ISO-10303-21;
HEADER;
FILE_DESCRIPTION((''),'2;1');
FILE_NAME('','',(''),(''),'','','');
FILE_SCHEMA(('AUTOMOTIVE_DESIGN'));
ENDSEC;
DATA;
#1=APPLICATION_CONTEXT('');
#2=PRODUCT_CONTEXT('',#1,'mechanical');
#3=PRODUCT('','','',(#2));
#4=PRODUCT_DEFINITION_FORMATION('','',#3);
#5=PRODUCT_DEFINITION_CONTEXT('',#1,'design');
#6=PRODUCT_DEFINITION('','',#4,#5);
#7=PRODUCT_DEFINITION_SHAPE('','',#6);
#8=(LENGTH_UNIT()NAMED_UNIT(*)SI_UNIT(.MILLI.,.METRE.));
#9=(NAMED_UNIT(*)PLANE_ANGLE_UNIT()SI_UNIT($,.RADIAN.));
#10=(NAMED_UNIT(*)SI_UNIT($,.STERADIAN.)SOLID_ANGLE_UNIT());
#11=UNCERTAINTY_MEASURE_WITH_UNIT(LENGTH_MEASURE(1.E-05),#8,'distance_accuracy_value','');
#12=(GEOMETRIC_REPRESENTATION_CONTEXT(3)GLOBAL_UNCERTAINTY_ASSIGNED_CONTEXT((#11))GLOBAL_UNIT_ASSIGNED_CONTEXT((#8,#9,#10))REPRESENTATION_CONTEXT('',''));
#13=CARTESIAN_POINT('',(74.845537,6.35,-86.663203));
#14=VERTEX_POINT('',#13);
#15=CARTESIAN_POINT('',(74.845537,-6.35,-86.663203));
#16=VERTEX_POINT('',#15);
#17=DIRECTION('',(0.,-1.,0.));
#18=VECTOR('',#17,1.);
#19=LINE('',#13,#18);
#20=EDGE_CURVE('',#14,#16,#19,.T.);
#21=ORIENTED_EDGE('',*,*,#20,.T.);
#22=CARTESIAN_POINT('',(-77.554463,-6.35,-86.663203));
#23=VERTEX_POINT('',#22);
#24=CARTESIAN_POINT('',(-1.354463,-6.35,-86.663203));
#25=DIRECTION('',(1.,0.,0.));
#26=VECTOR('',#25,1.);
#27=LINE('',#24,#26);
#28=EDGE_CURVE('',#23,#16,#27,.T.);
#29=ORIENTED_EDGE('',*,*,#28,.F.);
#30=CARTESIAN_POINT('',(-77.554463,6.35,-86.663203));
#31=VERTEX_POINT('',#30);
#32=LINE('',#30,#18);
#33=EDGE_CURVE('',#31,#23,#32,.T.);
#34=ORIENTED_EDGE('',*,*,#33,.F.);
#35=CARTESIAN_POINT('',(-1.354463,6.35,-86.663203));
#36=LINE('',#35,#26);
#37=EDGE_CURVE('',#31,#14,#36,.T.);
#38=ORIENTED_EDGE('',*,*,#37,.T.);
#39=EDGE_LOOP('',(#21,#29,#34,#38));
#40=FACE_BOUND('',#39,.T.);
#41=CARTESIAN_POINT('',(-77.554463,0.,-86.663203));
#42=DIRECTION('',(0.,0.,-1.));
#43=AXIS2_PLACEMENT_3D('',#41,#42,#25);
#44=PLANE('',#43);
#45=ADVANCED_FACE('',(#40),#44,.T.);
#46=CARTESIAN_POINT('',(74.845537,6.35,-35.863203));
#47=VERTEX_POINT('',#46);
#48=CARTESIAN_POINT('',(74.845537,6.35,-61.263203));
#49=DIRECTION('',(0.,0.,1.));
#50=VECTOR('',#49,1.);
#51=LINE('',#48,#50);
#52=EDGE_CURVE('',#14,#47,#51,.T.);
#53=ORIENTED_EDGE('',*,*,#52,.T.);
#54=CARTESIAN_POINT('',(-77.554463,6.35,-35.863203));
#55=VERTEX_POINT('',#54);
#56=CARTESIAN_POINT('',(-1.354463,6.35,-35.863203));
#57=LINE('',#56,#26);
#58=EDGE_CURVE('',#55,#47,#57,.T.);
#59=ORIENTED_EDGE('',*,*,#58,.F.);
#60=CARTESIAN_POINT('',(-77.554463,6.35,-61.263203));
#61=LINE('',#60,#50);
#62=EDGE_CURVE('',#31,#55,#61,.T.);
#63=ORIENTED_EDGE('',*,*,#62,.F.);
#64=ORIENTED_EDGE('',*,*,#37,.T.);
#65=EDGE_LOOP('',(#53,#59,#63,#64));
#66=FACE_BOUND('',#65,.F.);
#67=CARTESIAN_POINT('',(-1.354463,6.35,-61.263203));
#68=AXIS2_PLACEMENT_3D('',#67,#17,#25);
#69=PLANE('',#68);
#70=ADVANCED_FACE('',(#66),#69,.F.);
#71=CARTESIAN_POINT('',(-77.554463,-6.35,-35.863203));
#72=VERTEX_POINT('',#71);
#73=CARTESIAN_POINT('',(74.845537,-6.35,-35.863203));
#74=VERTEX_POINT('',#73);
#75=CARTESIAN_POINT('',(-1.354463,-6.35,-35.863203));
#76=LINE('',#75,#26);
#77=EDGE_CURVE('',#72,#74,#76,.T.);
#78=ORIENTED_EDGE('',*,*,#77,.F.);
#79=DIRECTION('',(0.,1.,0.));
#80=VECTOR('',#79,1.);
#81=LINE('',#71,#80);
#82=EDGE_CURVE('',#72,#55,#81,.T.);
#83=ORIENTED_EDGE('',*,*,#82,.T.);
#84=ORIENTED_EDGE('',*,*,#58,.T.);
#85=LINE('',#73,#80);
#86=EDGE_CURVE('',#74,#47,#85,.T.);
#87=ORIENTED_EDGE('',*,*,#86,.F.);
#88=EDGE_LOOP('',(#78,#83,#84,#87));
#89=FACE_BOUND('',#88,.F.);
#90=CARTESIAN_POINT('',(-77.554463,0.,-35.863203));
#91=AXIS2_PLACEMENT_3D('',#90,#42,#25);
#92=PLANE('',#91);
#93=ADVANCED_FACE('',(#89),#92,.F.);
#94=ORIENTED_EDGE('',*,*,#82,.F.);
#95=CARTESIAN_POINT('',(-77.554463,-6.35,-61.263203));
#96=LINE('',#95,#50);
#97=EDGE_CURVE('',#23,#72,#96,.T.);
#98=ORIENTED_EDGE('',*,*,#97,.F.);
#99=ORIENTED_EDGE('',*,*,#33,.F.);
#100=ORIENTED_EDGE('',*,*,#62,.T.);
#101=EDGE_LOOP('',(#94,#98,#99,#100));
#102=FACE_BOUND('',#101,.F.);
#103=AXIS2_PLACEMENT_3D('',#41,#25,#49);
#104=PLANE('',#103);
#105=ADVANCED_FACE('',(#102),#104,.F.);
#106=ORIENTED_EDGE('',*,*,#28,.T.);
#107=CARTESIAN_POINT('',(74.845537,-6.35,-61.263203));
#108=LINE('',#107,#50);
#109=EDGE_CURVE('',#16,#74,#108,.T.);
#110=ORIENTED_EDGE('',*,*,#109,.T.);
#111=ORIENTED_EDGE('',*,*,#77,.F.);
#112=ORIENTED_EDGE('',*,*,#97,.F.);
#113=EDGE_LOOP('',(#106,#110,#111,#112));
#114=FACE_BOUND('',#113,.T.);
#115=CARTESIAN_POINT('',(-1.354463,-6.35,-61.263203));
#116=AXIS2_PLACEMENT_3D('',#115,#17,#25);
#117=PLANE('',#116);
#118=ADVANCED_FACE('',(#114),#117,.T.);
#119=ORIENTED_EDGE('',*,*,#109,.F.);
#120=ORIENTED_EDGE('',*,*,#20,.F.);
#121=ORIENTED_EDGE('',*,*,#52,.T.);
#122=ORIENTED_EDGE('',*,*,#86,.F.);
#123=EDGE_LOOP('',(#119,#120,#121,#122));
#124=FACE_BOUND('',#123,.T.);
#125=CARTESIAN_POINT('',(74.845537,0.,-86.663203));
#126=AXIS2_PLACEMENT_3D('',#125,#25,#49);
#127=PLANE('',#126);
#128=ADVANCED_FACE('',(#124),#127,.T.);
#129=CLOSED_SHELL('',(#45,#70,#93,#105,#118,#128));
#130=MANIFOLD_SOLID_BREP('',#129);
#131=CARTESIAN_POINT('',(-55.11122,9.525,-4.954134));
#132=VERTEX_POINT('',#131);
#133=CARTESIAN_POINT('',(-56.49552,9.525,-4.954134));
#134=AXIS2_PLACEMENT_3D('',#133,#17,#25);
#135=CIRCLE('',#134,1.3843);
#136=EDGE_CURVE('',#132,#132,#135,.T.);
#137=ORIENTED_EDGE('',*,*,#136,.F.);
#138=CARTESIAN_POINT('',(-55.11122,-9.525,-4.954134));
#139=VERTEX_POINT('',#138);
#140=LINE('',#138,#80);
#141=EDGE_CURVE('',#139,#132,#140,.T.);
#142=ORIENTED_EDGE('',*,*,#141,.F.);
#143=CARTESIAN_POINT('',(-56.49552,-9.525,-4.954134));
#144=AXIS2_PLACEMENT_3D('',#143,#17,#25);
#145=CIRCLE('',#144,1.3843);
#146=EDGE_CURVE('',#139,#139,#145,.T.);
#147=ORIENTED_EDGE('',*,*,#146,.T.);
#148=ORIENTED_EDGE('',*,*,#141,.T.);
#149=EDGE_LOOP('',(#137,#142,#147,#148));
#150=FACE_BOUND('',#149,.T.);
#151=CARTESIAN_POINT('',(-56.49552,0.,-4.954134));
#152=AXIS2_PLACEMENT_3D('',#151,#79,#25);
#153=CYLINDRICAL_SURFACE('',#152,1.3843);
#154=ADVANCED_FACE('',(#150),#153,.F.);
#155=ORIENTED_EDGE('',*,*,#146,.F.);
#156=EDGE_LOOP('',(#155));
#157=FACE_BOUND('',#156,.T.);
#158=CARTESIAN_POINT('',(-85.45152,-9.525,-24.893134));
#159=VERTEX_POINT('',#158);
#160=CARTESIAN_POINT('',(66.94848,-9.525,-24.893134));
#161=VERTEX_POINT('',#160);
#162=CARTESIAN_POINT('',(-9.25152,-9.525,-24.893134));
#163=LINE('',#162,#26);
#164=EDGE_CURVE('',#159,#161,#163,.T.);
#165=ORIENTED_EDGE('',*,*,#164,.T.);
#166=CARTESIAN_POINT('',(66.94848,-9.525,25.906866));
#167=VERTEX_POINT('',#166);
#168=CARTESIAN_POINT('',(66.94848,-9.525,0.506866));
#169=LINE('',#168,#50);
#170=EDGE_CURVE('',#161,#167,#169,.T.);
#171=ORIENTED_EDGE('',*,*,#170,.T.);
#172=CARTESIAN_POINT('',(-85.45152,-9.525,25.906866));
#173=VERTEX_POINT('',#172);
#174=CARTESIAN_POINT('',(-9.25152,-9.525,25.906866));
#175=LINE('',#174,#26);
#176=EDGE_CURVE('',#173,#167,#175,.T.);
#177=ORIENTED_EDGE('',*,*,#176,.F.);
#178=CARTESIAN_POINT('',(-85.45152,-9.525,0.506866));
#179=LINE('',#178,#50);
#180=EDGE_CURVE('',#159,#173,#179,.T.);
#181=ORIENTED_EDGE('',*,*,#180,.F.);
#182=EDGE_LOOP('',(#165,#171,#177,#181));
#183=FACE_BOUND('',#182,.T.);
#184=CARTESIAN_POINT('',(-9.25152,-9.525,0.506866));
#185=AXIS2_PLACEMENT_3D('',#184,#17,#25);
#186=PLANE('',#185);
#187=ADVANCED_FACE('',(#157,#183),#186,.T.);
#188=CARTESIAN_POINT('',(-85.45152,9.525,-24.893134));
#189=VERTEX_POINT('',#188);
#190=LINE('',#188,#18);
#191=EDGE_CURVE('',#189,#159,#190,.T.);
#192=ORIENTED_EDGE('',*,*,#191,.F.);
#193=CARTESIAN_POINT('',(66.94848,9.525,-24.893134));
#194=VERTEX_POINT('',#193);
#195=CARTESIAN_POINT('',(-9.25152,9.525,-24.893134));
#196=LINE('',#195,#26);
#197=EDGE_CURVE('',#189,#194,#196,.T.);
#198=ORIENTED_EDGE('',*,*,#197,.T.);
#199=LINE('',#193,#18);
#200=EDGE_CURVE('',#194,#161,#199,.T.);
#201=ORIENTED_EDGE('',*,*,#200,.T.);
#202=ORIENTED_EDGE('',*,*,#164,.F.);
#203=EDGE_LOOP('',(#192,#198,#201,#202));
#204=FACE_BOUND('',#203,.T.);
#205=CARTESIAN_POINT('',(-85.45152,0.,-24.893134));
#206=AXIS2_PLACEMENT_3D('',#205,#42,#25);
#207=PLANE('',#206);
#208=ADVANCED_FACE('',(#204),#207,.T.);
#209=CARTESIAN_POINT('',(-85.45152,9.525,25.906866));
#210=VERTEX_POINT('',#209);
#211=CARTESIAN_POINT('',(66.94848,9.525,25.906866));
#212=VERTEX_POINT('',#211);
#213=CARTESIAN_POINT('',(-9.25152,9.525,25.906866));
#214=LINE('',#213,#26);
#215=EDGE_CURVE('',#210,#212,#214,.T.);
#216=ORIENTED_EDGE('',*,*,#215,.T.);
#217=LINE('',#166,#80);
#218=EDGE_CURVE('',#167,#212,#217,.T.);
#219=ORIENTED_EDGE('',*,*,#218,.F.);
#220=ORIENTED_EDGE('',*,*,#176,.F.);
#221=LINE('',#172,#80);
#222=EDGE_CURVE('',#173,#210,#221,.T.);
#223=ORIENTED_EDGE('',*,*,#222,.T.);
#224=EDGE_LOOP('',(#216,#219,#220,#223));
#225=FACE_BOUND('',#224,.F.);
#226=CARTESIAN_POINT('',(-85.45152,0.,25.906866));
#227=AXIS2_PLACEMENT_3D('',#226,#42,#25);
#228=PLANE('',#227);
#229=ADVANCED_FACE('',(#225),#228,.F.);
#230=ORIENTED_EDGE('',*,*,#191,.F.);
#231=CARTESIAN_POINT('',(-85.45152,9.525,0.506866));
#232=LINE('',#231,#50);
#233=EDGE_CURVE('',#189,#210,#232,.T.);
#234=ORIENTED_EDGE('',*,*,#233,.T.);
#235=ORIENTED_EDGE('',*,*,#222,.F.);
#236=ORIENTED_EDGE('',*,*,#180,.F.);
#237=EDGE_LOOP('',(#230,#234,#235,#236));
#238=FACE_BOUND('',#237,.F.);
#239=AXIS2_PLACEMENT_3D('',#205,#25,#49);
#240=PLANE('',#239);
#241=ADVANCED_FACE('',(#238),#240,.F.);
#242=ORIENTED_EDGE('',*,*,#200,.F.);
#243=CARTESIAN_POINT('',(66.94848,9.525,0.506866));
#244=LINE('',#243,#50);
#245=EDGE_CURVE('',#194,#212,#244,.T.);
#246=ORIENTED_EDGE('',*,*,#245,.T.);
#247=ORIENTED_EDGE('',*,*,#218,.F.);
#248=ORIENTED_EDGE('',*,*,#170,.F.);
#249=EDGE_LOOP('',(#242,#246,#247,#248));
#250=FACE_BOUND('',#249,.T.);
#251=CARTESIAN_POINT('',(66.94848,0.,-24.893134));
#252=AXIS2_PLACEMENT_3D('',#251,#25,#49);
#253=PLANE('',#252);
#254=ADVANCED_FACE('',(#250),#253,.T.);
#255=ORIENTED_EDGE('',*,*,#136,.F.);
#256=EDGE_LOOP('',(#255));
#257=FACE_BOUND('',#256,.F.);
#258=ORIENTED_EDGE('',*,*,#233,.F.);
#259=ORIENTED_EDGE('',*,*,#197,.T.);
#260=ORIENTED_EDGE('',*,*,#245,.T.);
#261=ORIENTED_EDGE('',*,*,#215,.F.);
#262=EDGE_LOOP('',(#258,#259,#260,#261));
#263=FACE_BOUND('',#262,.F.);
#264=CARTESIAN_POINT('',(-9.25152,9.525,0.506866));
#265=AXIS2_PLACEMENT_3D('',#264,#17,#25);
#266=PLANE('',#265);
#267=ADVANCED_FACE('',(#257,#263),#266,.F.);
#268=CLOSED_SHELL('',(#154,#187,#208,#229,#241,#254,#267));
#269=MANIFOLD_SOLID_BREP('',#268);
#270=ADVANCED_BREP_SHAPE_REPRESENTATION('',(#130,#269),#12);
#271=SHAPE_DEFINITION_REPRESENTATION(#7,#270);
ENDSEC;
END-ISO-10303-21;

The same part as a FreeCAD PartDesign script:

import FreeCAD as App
import Part
import Sketcher
from FreeCAD import Vector
Q = App.Units.Quantity

doc = App.newDocument("Part")
body = doc.addObject("PartDesign::Body", "Body")

# Sketch on XZ plane
sketch1 = body.newObject("Sketcher::SketchObject", "Sketch")
sketch1.AttachmentSupport = (doc.getObject("XZ_Plane"), [""])
sketch1.MapMode = "FlatFace"
sketch1.addGeometry([
    Part.LineSegment(Vector(-85.45152, 25.906866, 0), Vector(-85.45152, -24.893134, 0)),  # 0
    Part.LineSegment(Vector(-85.45152, -24.893134, 0), Vector(66.94848, -24.893134, 0)),  # 1
    Part.LineSegment(Vector(66.94848, -24.893134, 0), Vector(66.94848, 25.906866, 0)),  # 2
    Part.LineSegment(Vector(66.94848, 25.906866, 0), Vector(-85.45152, 25.906866, 0)),  # 3
    Part.Circle(Vector(-56.49552, -4.954134, 0), Vector(0, 0, 1), 1.3843),  # 4
], False)
sketch1.addConstraint([
    Sketcher.Constraint("Coincident", 0, 2, 1, 1),
    Sketcher.Constraint("Coincident", 1, 2, 2, 1),
    Sketcher.Constraint("Coincident", 2, 2, 3, 1),
    Sketcher.Constraint("Coincident", 3, 2, 0, 1),
    Sketcher.Constraint("Vertical", 0),
    Sketcher.Constraint("Horizontal", 1),
    Sketcher.Constraint("Vertical", 2),
    Sketcher.Constraint("Horizontal", 3),
    Sketcher.Constraint("DistanceX", 1, 1, 1, 2, Q("6 in")),
    Sketcher.Constraint("DistanceY", 0, 2, 0, 1, Q("2 in")),
    Sketcher.Constraint("Diameter", 4, Q("0.109 in")),
    Sketcher.Constraint("DistanceX", 0, 2, 4, 3, Q("1.14 in")),
    Sketcher.Constraint("DistanceY", 0, 2, 4, 3, Q("0.785 in")),
    Sketcher.Constraint("DistanceX", 4, 3, -1, 1, 56.49552),
    Sketcher.Constraint("DistanceY", 4, 3, -1, 1, 4.954134),
])
pad1 = body.newObject("PartDesign::Pad", "Pad")
pad1.Profile = sketch1
pad1.Length = Q("0.75 in")
pad1.Midplane = True
body2 = doc.addObject("PartDesign::Body", "Body001")

# Sketch on XZ plane
sketch2 = body2.newObject("Sketcher::SketchObject", "Sketch001")
sketch2.AttachmentSupport = (doc.getObject("XZ_Plane001"), [""])
sketch2.MapMode = "FlatFace"
sketch2.addGeometry([
    Part.LineSegment(Vector(-77.554463, -35.863203, 0), Vector(-77.554463, -86.663203, 0)),
    Part.LineSegment(Vector(-77.554463, -86.663203, 0), Vector(74.845537, -86.663203, 0)),
    Part.LineSegment(Vector(74.845537, -86.663203, 0), Vector(74.845537, -35.863203, 0)),
    Part.LineSegment(Vector(74.845537, -35.863203, 0), Vector(-77.554463, -35.863203, 0)),
], False)
sketch2.addConstraint([
    Sketcher.Constraint("Coincident", 0, 2, 1, 1),
    Sketcher.Constraint("Coincident", 1, 2, 2, 1),
    Sketcher.Constraint("Coincident", 2, 2, 3, 1),
    Sketcher.Constraint("Coincident", 3, 2, 0, 1),
    Sketcher.Constraint("Vertical", 0),
    Sketcher.Constraint("Horizontal", 1),
    Sketcher.Constraint("Vertical", 2),
    Sketcher.Constraint("Horizontal", 3),
    Sketcher.Constraint("DistanceX", 1, 1, 1, 2, Q("6 in")),
    Sketcher.Constraint("DistanceY", 0, 2, 0, 1, Q("2 in")),
    Sketcher.Constraint("DistanceX", 0, 2, -1, 1, 77.554463),
    Sketcher.Constraint("DistanceY", 0, 2, -1, 1, 86.663203),
])
pad2 = body2.newObject("PartDesign::Pad", "Pad001")
pad2.Profile = sketch2
pad2.Length = Q("0.5 in")
pad2.Midplane = True

doc.recompute()
